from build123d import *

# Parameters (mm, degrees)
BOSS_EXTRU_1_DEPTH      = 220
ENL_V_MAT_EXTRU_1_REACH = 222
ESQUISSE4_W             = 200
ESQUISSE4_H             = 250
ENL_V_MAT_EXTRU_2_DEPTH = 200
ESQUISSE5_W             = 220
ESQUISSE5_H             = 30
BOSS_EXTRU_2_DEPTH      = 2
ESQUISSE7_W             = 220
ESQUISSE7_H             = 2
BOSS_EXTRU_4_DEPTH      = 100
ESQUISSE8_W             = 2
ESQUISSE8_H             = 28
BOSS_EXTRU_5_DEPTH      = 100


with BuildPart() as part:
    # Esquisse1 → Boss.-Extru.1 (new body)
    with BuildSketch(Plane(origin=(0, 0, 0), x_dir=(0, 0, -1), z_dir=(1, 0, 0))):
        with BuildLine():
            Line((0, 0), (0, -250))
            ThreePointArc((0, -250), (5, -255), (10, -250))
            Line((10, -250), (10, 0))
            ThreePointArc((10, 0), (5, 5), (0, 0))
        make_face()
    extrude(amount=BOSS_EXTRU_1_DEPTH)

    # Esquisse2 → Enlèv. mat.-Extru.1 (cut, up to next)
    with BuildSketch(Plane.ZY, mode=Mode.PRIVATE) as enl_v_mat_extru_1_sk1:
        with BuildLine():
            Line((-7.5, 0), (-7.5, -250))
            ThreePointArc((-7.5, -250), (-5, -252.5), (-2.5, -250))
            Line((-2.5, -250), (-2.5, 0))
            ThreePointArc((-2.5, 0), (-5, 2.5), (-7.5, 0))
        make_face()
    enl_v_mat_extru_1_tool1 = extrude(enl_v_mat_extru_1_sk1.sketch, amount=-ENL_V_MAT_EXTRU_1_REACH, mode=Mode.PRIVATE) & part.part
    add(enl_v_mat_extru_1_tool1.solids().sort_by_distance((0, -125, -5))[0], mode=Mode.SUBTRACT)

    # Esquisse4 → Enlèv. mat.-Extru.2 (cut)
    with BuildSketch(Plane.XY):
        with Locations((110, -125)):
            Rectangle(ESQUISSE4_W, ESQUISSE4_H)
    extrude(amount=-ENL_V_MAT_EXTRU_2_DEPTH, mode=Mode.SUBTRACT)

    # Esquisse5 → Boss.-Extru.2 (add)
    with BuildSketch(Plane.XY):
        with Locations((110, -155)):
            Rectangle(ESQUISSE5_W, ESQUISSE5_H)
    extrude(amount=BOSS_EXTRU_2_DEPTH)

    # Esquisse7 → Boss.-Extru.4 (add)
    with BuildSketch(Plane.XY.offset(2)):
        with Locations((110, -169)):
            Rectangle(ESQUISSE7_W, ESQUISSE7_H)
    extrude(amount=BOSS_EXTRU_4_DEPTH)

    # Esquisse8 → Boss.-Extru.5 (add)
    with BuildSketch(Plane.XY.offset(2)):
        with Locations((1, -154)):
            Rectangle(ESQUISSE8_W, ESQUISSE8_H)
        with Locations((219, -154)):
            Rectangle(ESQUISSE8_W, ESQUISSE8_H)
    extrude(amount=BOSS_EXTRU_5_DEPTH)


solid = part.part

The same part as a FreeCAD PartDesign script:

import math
import FreeCAD as App
import Part
import Sketcher


def add_polygon(sketch, points):
    """Adds a closed chain of lines whose ends are joined by coincident constraints."""
    first, n = sketch.GeometryCount, len(points)
    for a, b in zip(points, points[1:] + points[:1]):
        sketch.addGeometry(Part.LineSegment(App.Vector(*a, 0), App.Vector(*b, 0)), False)
    for i in range(n):
        sketch.addConstraint(Sketcher.Constraint("Coincident", first + i, 2, first + (i + 1) % n, 1))

doc = App.newDocument("Part")
body = doc.addObject("PartDesign::Body", "Body")

sketch1 = doc.addObject("Sketcher::SketchObject", "Sketch")
body.addObject(sketch1)
sketch1.AttachmentSupport = (doc.YZ_Plane, [""])
sketch1.MapMode = "FlatFace"
sketch1.addGeometry([
    Part.LineSegment(App.Vector(0, 0, 0), App.Vector(-250, 0, 0)),
    Part.ArcOfCircle(Part.Circle(App.Vector(-250, -5, 0), App.Vector(0, 0, 1), 5), math.radians(90), math.radians(270)),
    Part.LineSegment(App.Vector(-250, -10, 0), App.Vector(0, -10, 0)),
    Part.ArcOfCircle(Part.Circle(App.Vector(0, -5, 0), App.Vector(0, 0, 1), 5), math.radians(-90), math.radians(90)),
], False)
sketch1.addConstraint([
    Sketcher.Constraint("Tangent", 0, 2, 1, 1),
    Sketcher.Constraint("Tangent", 1, 2, 2, 1),
    Sketcher.Constraint("Tangent", 2, 2, 3, 1),
    Sketcher.Constraint("Tangent", 3, 2, 0, 1),
    Sketcher.Constraint("Horizontal", 0),
    Sketcher.Constraint("Horizontal", 2),
    Sketcher.Constraint("Coincident", 3, 2, -1, 1),
    Sketcher.Constraint("Radius", 1, 5.0),
    Sketcher.Constraint("DistanceX", 0, 2, 0, 1, 250.0),
])
pad1 = doc.addObject("PartDesign::Pad", "Pad")
body.addObject(pad1)
pad1.Profile = sketch1
pad1.Length = 220

sketch2 = doc.addObject("Sketcher::SketchObject", "Sketch001")
body.addObject(sketch2)
sketch2.AttachmentSupport = (doc.YZ_Plane, [""])
sketch2.MapMode = "FlatFace"
sketch2.addGeometry([
    Part.LineSegment(App.Vector(0, -7.5, 0), App.Vector(-250, -7.5, 0)),
    Part.ArcOfCircle(Part.Circle(App.Vector(-250, -5, 0), App.Vector(0, 0, 1), 2.5), math.radians(90), math.radians(270)),
    Part.LineSegment(App.Vector(-250, -2.5, 0), App.Vector(0, -2.5, 0)),
    Part.ArcOfCircle(Part.Circle(App.Vector(0, -5, 0), App.Vector(0, 0, 1), 2.5), math.radians(-90), math.radians(90)),
], False)
sketch2.addConstraint([
    Sketcher.Constraint("Tangent", 0, 2, 1, 2),
    Sketcher.Constraint("Tangent", 1, 1, 2, 1),
    Sketcher.Constraint("Tangent", 2, 2, 3, 2),
    Sketcher.Constraint("Tangent", 3, 1, 0, 1),
    Sketcher.Constraint("Horizontal", 0),
    Sketcher.Constraint("Horizontal", 2),
    Sketcher.Constraint("PointOnObject", 3, 3, -2),
    Sketcher.Constraint("Radius", 1, 2.5),
    Sketcher.Constraint("DistanceX", 0, 2, 0, 1, 250.0),
    Sketcher.Constraint("DistanceY", 1, 3, -1, 1, 5.0),
])
pocket1 = doc.addObject("PartDesign::Pocket", "Pocket")
body.addObject(pocket1)
pocket1.Profile = sketch2
pocket1.Type = "UpToFirst"
pocket1.Reversed = True

sketch3 = doc.addObject("Sketcher::SketchObject", "Sketch002")
body.addObject(sketch3)
sketch3.AttachmentSupport = (doc.XY_Plane, [""])
sketch3.MapMode = "FlatFace"
add_polygon(sketch3, [(10, 0), (10, -250), (210, -250), (210, 0)])
sketch3.addConstraint([
    Sketcher.Constraint("Vertical", 0),
    Sketcher.Constraint("Horizontal", 1),
    Sketcher.Constraint("Vertical", 2),
    Sketcher.Constraint("Horizontal", 3),
    Sketcher.Constraint("PointOnObject", 2, 2, -1),
    Sketcher.Constraint("DistanceX", 1, 1, 1, 2, 200.0),
    Sketcher.Constraint("DistanceY", 0, 2, 0, 1, 250.0),
    Sketcher.Constraint("DistanceX", -1, 1, 0, 2, 10.0),
])
pocket2 = doc.addObject("PartDesign::Pocket", "Pocket001")
body.addObject(pocket2)
pocket2.Profile = sketch3
pocket2.Length = 200

sketch4 = doc.addObject("Sketcher::SketchObject", "Sketch003")
body.addObject(sketch4)
sketch4.AttachmentSupport = (doc.XY_Plane, [""])
sketch4.MapMode = "FlatFace"
add_polygon(sketch4, [(0, -140), (0, -170), (220, -170), (220, -140)])
sketch4.addConstraint([
    Sketcher.Constraint("Vertical", 0),
    Sketcher.Constraint("Horizontal", 1),
    Sketcher.Constraint("Vertical", 2),
    Sketcher.Constraint("Horizontal", 3),
    Sketcher.Constraint("PointOnObject", 0, 2, -2),
    Sketcher.Constraint("DistanceX", 1, 1, 1, 2, 220.0),
    Sketcher.Constraint("DistanceY", 0, 2, 0, 1, 30.0),
    Sketcher.Constraint("DistanceY", 0, 2, -1, 1, 170.0),
])
pad2 = doc.addObject("PartDesign::Pad", "Pad001")
body.addObject(pad2)
pad2.Profile = sketch4
pad2.Length = 2

sketch5 = doc.addObject("Sketcher::SketchObject", "Sketch004")
body.addObject(sketch5)
sketch5.AttachmentSupport = (doc.XY_Plane, [""])
sketch5.MapMode = "FlatFace"
sketch5.AttachmentOffset = App.Placement(App.Vector(0, 0, 2), App.Rotation())
add_polygon(sketch5, [(0, -168), (0, -170), (220, -170), (220, -168)])
sketch5.addConstraint([
    Sketcher.Constraint("Vertical", 0),
    Sketcher.Constraint("Horizontal", 1),
    Sketcher.Constraint("Vertical", 2),
    Sketcher.Constraint("Horizontal", 3),
    Sketcher.Constraint("PointOnObject", 0, 2, -2),
    Sketcher.Constraint("DistanceX", 1, 1, 1, 2, 220.0),
    Sketcher.Constraint("DistanceY", 0, 2, 0, 1, 2.0),
    Sketcher.Constraint("DistanceY", 0, 2, -1, 1, 170.0),
])
pad3 = doc.addObject("PartDesign::Pad", "Pad002")
body.addObject(pad3)
pad3.Profile = sketch5
pad3.Length = 100

sketch6 = doc.addObject("Sketcher::SketchObject", "Sketch005")
body.addObject(sketch6)
sketch6.AttachmentSupport = (doc.XY_Plane, [""])
sketch6.MapMode = "FlatFace"
sketch6.AttachmentOffset = App.Placement(App.Vector(0, 0, 2), App.Rotation())
add_polygon(sketch6, [(0, -140), (0, -168), (2, -168), (2, -140)])
add_polygon(sketch6, [(218, -140), (218, -168), (220, -168), (220, -140)])
sketch6.addConstraint([
    Sketcher.Constraint("Vertical", 0),
    Sketcher.Constraint("Horizontal", 1),
    Sketcher.Constraint("Vertical", 2),
    Sketcher.Constraint("Horizontal", 3),
    Sketcher.Constraint("Vertical", 4),
    Sketcher.Constraint("Horizontal", 5),
    Sketcher.Constraint("Vertical", 6),
    Sketcher.Constraint("Horizontal", 7),
    Sketcher.Constraint("PointOnObject", 0, 2, -2),
    Sketcher.Constraint("Horizontal", 1, 2, 4, 2),
    Sketcher.Constraint("Horizontal", 3, 2, 6, 2),
    Sketcher.Constraint("Equal", 3, 5),
    Sketcher.Constraint("DistanceX", 1, 1, 1, 2, 2.0),
    Sketcher.Constraint("DistanceY", 0, 2, 0, 1, 28.0),
    Sketcher.Constraint("DistanceY", 0, 2, -1, 1, 168.0),
    Sketcher.Constraint("DistanceX", -1, 1, 4, 2, 218.0),
])
pad4 = doc.addObject("PartDesign::Pad", "Pad003")
body.addObject(pad4)
pad4.Profile = sketch6
pad4.Length = 100

doc.recompute()
